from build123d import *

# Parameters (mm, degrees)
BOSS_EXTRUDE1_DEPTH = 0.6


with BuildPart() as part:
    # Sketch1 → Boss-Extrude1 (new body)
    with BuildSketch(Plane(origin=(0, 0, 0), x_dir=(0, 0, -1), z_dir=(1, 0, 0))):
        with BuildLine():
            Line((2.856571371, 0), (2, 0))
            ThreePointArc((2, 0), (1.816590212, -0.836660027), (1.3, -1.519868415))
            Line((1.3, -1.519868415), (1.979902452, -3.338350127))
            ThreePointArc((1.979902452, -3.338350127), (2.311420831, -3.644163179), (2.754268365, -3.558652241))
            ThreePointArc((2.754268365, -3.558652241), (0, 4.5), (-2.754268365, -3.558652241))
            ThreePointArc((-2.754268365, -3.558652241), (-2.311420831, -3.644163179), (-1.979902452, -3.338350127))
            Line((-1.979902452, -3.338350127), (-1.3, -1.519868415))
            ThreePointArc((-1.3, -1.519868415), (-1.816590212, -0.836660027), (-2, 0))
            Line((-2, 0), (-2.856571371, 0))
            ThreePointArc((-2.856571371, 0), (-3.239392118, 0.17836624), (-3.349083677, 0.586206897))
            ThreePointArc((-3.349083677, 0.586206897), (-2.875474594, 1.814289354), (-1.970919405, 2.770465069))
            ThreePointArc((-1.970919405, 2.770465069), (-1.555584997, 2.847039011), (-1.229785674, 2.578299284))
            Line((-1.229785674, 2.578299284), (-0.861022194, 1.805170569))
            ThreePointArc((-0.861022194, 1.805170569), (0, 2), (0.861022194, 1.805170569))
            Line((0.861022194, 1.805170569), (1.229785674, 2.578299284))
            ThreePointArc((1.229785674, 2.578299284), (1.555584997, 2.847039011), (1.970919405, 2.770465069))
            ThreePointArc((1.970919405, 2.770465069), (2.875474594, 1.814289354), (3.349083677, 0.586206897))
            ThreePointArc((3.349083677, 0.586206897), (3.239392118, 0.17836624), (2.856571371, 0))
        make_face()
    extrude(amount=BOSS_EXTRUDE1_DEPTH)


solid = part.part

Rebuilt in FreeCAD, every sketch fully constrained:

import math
import FreeCAD as App
import Part
import Sketcher

V = App.Vector
Q = App.Units.Quantity

doc = App.newDocument("Part")
body = doc.addObject("PartDesign::Body", "Body")

# Sketch on YZ plane
sketch1 = body.newObject("Sketcher::SketchObject", "Sketch")
sketch1.AttachmentSupport = (doc.getObject("YZ_Plane"), [""])
sketch1.MapMode = "FlatFace"
sketch1.addGeometry(Part.LineSegment(V(0, -2.86, 0), V(0, -2, 0)), False)
sketch1.addGeometry(Part.ArcOfCircle(Part.Circle(V(0, 0, 0), V(0, 0, 1), 2), math.radians(-139), math.radians(-90)), False)
sketch1.addGeometry(Part.LineSegment(V(-1.52, -1.3, 0), V(-3.34, -1.98, 0)), False)
sketch1.addGeometry(Part.ArcOfCircle(Part.Circle(V(-3.16, -2.45, 0), V(0, 0, 1), 0.5), math.radians(110), math.radians(218)), False)
sketch1.addGeometry(Part.ArcOfCircle(Part.Circle(V(0, 0, 0), V(0, 0, 1), 4.5), math.radians(-142), math.radians(142)), False)
sketch1.addGeometry(Part.ArcOfCircle(Part.Circle(V(-3.16, 2.45, 0), V(0, 0, 1), 0.5), math.radians(142), math.radians(250)), False)
sketch1.addGeometry(Part.LineSegment(V(-3.34, 1.98, 0), V(-1.52, 1.3, 0)), False)
sketch1.addGeometry(Part.ArcOfCircle(Part.Circle(V(0, 0, 0), V(0, 0, 1), 2), math.radians(90), math.radians(139)), False)
sketch1.addGeometry(Part.LineSegment(V(0, 2, 0), V(0, 2.86, 0)), False)
sketch1.addGeometry(Part.ArcOfCircle(Part.Circle(V(0.5, 2.86, 0), V(0, 0, 1), 0.5), math.radians(80), math.radians(180)), False)
sketch1.addGeometry(Part.ArcOfCircle(Part.Circle(V(0, 0, 0), V(0, 0, 1), 3.4), math.radians(35), math.radians(80)), False)
sketch1.addGeometry(Part.ArcOfCircle(Part.Circle(V(2.36, 1.68, 0), V(0, 0, 1), 0.5), math.radians(-64), math.radians(35)), False)
sketch1.addGeometry(Part.LineSegment(V(2.58, 1.23, 0), V(1.81, 0.86, 0)), False)
sketch1.addGeometry(Part.ArcOfCircle(Part.Circle(V(0, 0, 0), V(0, 0, 1), 2), math.radians(-25), math.radians(25)), False)
sketch1.addGeometry(Part.LineSegment(V(1.81, -0.86, 0), V(2.58, -1.23, 0)), False)
sketch1.addGeometry(Part.ArcOfCircle(Part.Circle(V(2.36, -1.68, 0), V(0, 0, 1), 0.5), math.radians(-35), math.radians(64)), False)
sketch1.addGeometry(Part.ArcOfCircle(Part.Circle(V(0, 0, 0), V(0, 0, 1), 3.4), math.radians(-80), math.radians(-35)), False)
sketch1.addGeometry(Part.ArcOfCircle(Part.Circle(V(0.5, -2.86, 0), V(0, 0, 1), 0.5), math.radians(-180), math.radians(-80)), False)
sketch1.addConstraint(Sketcher.Constraint("Coincident", 0, 2, 1, 2))
sketch1.addConstraint(Sketcher.Constraint("Coincident", 1, 1, 2, 1))
sketch1.addConstraint(Sketcher.Constraint("Tangent", 2, 2, 3, 1))
sketch1.addConstraint(Sketcher.Constraint("Tangent", 3, 2, 4, 1))
sketch1.addConstraint(Sketcher.Constraint("Tangent", 4, 2, 5, 1))
sketch1.addConstraint(Sketcher.Constraint("Tangent", 5, 2, 6, 1))
sketch1.addConstraint(Sketcher.Constraint("Coincident", 6, 2, 7, 2))
sketch1.addConstraint(Sketcher.Constraint("Coincident", 7, 1, 8, 1))
sketch1.addConstraint(Sketcher.Constraint("Tangent", 8, 2, 9, 2))
sketch1.addConstraint(Sketcher.Constraint("Tangent", 9, 1, 10, 2))
sketch1.addConstraint(Sketcher.Constraint("Tangent", 10, 1, 11, 2))
sketch1.addConstraint(Sketcher.Constraint("Tangent", 11, 1, 12, 1))
sketch1.addConstraint(Sketcher.Constraint("Coincident", 12, 2, 13, 2))
sketch1.addConstraint(Sketcher.Constraint("Coincident", 13, 1, 14, 1))
sketch1.addConstraint(Sketcher.Constraint("Tangent", 14, 2, 15, 2))
sketch1.addConstraint(Sketcher.Constraint("Tangent", 15, 1, 16, 2))
sketch1.addConstraint(Sketcher.Constraint("Tangent", 16, 1, 17, 2))
sketch1.addConstraint(Sketcher.Constraint("Tangent", 17, 1, 0, 1))
sketch1.addConstraint(Sketcher.Constraint("Vertical", 0))
sketch1.addConstraint(Sketcher.Constraint("Vertical", 8))
sketch1.addConstraint(Sketcher.Constraint("Coincident", 1, 3, -1, 1))
sketch1.addConstraint(Sketcher.Constraint("Coincident", 4, 3, -1, 1))
sketch1.addConstraint(Sketcher.Constraint("Coincident", 7, 3, -1, 1))
sketch1.addConstraint(Sketcher.Constraint("Coincident", 10, 3, -1, 1))
sketch1.addConstraint(Sketcher.Constraint("Coincident", 13, 3, -1, 1))
sketch1.addConstraint(Sketcher.Constraint("Coincident", 16, 3, -1, 1))
sketch1.addConstraint(Sketcher.Constraint("Equal", 3, 5))
sketch1.addConstraint(Sketcher.Constraint("Equal", 1, 7))
sketch1.addConstraint(Sketcher.Constraint("Equal", 5, 9))
sketch1.addConstraint(Sketcher.Constraint("Equal", 9, 11))
sketch1.addConstraint(Sketcher.Constraint("Equal", 7, 13))
sketch1.addConstraint(Sketcher.Constraint("Equal", 11, 15))
sketch1.addConstraint(Sketcher.Constraint("Equal", 10, 16))
sketch1.addConstraint(Sketcher.Constraint("Equal", 15, 17))
sketch1.addConstraint(Sketcher.Constraint("Symmetric", 8, 2, 17, 1, -1, 1))
sketch1.addConstraint(Sketcher.Constraint("Symmetric", 2, 2, 5, 2, -1))
sketch1.addConstraint(Sketcher.Constraint("Symmetric", 11, 1, 14, 2, -1))
sketch1.addConstraint(Sketcher.Constraint("Radius", 1, Q("2 mm")))
sketch1.addConstraint(Sketcher.Constraint("Radius", 3, Q("0.5 mm")))
sketch1.addConstraint(Sketcher.Constraint("Radius", 4, Q("4.5 mm")))
sketch1.addConstraint(Sketcher.Constraint("Radius", 10, Q("3.4 mm")))
sketch1.addConstraint(Sketcher.Constraint("Angle", 2, Q("-159.5 deg")))
sketch1.addConstraint(Sketcher.Constraint("Angle", 12, Q("-154.5 deg")))
sketch1.addConstraint(Sketcher.Constraint("DistanceY", 1, 1, -1, 1, Q("1.3 mm")))
sketch1.addConstraint(Sketcher.Constraint("DistanceX", -1, 1, 11, 1, Q("2.578299 mm")))
pad1 = body.newObject("PartDesign::Pad", "Pad")
pad1.Profile = sketch1
pad1.Length = 0.6

doc.recompute()
